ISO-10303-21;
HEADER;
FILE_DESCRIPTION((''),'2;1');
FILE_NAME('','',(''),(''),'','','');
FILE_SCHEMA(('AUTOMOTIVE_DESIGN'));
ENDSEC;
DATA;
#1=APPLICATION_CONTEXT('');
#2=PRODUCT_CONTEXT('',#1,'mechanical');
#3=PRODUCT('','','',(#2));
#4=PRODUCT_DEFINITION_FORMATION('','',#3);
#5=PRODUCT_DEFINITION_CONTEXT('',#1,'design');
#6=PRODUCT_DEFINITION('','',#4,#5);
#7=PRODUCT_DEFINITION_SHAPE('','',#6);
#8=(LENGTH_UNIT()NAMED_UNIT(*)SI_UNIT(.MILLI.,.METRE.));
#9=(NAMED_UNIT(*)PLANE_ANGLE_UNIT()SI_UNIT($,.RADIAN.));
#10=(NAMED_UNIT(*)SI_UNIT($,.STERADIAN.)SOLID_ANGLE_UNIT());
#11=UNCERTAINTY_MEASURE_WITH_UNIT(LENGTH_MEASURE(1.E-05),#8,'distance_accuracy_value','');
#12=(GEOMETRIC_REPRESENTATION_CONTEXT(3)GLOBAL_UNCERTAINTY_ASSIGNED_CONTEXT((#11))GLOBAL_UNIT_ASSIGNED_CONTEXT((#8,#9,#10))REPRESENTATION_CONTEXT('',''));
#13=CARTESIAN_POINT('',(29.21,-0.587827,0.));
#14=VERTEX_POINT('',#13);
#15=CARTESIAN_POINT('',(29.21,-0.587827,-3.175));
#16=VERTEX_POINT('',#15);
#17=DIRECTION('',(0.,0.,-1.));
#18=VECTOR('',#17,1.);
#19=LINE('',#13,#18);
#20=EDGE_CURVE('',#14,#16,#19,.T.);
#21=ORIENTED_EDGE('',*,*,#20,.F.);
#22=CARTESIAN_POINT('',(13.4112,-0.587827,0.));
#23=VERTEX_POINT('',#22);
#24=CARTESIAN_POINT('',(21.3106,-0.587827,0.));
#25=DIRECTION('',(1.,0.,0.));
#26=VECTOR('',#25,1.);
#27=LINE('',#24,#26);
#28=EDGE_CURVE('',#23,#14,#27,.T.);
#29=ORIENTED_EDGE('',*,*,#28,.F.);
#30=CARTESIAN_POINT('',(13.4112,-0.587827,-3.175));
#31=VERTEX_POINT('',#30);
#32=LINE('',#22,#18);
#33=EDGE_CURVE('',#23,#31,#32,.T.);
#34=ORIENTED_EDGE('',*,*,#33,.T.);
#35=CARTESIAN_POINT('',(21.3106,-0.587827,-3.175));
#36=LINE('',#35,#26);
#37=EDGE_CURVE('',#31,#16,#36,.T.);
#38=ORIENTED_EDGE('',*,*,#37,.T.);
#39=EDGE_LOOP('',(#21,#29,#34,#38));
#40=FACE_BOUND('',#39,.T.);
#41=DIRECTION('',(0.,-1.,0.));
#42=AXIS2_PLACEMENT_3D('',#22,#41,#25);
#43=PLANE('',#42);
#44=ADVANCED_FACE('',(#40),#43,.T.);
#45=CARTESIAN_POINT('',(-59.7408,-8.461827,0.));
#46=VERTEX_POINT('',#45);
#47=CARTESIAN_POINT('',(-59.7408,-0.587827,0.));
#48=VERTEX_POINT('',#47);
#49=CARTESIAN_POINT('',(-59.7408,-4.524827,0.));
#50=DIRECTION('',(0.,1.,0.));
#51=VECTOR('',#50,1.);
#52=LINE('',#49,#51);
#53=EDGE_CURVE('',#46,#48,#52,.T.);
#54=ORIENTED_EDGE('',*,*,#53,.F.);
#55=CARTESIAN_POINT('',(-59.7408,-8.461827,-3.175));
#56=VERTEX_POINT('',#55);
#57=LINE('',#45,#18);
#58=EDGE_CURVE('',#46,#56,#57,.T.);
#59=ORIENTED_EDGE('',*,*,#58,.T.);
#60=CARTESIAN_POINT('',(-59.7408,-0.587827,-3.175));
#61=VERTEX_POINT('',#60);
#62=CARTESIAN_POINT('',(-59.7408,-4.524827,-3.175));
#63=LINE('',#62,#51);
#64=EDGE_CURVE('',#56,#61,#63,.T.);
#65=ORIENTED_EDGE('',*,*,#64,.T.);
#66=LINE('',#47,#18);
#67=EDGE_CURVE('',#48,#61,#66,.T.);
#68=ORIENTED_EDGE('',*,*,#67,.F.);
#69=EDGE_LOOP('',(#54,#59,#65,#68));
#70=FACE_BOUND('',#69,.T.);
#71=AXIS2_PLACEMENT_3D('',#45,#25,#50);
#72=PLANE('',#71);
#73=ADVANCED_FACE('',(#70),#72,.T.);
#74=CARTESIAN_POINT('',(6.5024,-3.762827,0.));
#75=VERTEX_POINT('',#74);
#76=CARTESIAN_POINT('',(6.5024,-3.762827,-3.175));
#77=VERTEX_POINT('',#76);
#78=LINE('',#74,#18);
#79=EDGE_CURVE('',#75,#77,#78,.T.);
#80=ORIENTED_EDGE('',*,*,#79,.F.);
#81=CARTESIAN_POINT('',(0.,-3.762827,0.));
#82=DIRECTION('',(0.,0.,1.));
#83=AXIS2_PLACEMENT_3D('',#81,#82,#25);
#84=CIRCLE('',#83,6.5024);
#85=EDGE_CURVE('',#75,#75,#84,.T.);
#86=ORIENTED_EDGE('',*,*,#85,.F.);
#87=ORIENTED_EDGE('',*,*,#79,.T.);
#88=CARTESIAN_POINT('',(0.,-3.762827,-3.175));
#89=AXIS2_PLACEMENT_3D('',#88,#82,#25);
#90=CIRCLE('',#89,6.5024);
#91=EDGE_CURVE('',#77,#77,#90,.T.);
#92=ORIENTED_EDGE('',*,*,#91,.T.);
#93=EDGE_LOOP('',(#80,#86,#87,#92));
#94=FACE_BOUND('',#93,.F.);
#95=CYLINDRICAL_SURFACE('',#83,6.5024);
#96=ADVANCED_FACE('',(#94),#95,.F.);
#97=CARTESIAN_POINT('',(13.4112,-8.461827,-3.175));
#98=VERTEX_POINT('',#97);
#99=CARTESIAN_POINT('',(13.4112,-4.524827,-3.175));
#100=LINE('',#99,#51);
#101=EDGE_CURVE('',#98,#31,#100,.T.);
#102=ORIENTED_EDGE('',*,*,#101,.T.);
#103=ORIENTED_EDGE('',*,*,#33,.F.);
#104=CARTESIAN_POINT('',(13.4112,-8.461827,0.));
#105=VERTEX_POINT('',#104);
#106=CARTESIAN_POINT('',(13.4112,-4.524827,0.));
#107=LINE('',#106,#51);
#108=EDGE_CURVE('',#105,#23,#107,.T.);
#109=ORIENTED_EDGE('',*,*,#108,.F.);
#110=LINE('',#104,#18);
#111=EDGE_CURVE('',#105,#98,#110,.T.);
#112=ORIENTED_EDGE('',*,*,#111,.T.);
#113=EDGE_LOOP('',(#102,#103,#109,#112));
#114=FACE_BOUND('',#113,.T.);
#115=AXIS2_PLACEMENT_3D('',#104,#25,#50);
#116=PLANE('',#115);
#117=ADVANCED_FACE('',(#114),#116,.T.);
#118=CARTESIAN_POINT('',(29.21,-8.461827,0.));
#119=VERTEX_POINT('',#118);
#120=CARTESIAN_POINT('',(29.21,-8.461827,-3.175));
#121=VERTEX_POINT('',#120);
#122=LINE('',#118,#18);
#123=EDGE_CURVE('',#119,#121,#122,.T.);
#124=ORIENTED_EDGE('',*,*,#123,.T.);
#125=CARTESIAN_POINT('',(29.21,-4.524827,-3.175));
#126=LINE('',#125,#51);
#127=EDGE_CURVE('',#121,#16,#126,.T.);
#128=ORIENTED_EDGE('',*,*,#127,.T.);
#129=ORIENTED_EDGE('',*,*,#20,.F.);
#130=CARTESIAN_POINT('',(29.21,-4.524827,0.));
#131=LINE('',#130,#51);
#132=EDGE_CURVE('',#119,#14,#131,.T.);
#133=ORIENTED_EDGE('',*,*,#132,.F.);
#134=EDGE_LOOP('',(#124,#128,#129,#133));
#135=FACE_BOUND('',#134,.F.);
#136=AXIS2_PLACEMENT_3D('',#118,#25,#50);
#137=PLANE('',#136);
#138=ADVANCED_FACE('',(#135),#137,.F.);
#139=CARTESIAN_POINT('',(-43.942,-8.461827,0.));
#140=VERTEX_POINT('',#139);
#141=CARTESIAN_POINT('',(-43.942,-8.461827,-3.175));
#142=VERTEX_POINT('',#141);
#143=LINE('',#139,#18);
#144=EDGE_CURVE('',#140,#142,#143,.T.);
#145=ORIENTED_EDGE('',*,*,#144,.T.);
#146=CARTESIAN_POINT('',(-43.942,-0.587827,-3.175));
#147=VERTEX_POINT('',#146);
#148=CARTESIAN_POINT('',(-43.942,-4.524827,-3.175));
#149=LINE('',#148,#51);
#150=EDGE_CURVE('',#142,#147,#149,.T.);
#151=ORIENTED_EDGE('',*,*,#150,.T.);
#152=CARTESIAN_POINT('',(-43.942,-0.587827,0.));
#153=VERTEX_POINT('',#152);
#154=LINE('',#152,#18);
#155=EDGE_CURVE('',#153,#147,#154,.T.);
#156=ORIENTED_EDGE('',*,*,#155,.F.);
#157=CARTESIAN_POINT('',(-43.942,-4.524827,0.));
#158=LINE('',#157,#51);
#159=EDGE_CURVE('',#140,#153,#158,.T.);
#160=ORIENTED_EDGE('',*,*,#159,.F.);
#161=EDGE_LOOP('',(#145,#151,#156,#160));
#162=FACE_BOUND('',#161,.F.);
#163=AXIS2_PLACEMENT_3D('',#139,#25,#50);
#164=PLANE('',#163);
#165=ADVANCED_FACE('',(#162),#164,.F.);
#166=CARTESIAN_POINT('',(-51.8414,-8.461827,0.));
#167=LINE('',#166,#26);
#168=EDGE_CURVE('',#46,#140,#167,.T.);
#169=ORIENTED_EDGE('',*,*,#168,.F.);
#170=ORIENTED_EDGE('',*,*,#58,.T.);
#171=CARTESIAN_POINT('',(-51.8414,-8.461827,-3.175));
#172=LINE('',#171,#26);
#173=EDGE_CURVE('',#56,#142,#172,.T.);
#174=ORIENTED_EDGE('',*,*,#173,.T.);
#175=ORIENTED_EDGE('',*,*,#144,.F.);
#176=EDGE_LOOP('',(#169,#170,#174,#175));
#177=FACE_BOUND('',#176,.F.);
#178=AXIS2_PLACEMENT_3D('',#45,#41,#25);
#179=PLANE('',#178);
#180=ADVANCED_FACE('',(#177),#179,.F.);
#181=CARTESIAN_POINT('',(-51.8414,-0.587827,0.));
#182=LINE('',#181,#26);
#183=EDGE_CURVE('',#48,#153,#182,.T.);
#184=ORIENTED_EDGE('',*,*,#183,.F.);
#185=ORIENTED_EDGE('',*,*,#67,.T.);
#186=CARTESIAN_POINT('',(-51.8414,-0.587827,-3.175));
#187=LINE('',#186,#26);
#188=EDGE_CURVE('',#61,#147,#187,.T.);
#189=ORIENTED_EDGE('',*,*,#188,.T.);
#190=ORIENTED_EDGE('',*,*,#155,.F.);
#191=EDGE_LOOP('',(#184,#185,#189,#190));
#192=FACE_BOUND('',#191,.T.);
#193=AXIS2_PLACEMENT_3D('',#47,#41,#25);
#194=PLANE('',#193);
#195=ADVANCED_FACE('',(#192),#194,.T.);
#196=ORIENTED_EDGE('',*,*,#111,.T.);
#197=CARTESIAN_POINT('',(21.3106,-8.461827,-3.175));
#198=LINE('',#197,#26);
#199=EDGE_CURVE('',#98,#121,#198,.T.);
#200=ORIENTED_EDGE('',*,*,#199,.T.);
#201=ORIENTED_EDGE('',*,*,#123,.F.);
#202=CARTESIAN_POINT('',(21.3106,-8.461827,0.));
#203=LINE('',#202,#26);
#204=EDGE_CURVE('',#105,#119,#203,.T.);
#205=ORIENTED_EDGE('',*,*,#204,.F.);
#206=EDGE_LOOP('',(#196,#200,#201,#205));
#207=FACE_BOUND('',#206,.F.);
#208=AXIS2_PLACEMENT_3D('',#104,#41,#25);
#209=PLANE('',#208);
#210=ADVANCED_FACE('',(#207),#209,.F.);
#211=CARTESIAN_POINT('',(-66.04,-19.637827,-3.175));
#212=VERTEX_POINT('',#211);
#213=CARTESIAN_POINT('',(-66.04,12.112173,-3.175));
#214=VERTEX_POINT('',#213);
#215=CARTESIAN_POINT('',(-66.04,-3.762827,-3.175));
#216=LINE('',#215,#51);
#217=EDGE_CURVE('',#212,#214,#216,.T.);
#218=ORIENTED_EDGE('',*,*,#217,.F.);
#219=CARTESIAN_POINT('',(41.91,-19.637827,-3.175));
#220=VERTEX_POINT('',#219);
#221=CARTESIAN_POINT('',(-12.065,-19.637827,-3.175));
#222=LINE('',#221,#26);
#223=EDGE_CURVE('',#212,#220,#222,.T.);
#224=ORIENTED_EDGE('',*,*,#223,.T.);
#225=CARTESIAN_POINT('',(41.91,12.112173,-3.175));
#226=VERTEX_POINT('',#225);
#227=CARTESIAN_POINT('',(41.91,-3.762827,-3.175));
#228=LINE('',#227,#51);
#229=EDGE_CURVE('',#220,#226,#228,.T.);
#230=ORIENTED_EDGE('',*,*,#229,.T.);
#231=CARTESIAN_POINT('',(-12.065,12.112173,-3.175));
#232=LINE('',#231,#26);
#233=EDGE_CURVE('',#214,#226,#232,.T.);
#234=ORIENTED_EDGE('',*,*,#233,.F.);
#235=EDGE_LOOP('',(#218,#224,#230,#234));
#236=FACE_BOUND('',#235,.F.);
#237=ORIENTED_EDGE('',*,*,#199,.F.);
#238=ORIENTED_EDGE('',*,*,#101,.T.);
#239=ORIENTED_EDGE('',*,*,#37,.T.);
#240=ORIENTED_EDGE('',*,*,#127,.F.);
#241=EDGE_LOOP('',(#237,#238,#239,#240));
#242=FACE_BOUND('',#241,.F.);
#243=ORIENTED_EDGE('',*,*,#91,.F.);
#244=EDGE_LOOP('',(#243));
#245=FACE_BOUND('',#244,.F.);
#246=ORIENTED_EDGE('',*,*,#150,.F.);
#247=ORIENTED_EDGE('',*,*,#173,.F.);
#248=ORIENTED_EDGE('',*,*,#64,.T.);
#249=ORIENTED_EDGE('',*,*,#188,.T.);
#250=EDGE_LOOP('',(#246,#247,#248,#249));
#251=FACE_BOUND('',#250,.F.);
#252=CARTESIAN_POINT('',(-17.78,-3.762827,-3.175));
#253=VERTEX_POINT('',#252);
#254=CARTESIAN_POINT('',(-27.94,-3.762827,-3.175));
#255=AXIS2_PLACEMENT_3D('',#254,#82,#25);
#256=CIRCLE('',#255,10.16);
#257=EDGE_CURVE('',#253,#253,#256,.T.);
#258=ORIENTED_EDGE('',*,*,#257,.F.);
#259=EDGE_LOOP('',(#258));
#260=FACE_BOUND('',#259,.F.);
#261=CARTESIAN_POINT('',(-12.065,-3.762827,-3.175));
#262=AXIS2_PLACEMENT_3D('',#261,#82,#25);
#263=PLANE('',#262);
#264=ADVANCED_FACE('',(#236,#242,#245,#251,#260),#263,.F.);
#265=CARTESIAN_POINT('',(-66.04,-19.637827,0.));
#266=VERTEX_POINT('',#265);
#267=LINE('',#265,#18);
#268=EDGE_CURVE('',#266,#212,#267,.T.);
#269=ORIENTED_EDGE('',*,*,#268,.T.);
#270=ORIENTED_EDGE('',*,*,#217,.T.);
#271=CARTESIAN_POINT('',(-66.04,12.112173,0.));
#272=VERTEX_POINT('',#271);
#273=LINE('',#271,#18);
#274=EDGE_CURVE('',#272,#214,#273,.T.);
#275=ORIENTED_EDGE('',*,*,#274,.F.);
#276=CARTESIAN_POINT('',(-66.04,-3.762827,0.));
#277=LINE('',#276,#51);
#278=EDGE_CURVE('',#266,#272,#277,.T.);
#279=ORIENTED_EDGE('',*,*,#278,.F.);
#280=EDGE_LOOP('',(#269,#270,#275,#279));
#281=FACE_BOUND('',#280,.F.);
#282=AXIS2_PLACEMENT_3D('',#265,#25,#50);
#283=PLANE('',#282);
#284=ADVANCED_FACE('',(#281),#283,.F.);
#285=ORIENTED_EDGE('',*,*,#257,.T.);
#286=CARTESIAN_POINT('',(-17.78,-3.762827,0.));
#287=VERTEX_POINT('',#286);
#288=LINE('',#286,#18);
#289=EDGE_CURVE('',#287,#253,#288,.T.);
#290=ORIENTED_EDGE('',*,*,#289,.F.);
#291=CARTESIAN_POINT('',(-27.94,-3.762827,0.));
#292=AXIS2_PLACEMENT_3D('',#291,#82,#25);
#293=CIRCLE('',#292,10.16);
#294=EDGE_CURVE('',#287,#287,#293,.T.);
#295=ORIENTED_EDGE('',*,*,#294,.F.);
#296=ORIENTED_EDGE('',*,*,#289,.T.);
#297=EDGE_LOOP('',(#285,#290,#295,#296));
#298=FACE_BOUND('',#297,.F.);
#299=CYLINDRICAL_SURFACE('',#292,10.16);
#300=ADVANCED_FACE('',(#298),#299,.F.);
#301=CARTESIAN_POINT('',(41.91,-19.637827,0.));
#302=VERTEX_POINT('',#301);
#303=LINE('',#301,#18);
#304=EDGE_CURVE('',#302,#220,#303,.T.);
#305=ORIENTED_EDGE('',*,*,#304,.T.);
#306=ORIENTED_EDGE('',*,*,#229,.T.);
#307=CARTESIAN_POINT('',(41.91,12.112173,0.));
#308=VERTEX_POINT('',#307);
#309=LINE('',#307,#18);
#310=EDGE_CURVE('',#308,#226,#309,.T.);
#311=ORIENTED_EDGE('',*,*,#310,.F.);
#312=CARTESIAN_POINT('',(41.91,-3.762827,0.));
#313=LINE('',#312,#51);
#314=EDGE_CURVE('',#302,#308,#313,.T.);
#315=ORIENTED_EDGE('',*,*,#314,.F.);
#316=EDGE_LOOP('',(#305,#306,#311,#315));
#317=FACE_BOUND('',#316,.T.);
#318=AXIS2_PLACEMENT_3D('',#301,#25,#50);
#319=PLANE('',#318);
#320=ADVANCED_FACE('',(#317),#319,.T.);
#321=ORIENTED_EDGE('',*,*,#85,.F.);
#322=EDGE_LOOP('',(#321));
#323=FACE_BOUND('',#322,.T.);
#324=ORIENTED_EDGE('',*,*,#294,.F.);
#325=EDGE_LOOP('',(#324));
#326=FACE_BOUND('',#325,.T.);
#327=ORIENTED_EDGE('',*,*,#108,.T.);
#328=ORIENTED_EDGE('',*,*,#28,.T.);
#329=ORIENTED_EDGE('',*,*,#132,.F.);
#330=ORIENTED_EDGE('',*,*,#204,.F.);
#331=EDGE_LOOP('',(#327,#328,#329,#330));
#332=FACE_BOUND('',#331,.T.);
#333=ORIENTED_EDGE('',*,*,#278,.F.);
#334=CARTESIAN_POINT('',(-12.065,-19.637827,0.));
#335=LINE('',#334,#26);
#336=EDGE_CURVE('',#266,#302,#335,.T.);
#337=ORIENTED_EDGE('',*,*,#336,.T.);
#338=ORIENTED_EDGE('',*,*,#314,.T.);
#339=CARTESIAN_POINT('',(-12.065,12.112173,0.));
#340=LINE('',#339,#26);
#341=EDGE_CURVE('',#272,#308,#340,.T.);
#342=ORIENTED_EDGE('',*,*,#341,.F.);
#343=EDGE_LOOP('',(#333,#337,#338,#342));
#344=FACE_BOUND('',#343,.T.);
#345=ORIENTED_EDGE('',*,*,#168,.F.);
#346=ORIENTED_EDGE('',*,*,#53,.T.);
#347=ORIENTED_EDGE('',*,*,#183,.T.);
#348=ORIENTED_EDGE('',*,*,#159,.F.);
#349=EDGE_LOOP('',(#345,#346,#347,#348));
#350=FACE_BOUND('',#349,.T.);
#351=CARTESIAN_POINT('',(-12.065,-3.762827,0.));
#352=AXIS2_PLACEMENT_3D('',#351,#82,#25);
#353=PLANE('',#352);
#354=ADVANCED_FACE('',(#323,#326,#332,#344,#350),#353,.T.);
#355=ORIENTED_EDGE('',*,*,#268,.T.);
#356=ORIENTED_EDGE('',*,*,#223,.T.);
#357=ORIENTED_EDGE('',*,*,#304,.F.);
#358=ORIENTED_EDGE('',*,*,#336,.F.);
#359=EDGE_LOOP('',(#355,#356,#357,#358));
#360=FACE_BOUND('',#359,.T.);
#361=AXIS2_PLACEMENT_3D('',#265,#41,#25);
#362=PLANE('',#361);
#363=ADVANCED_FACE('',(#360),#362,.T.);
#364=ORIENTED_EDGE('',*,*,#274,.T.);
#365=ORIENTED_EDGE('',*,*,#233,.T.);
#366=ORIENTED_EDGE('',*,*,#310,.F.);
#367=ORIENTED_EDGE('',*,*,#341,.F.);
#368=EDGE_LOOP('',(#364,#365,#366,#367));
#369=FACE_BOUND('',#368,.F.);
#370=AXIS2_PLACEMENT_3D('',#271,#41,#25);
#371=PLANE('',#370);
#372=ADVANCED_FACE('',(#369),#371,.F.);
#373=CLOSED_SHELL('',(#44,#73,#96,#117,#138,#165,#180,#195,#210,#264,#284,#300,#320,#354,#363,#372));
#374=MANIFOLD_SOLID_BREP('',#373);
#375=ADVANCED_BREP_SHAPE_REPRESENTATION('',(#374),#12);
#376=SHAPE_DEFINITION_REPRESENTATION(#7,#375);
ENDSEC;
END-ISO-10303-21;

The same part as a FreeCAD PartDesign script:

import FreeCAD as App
import Part
import Sketcher
Q = App.Units.Quantity


def add_polygon(sketch, points):
    """Adds a closed chain of lines whose ends are joined by coincident constraints."""
    first, n = sketch.GeometryCount, len(points)
    for a, b in zip(points, points[1:] + points[:1]):
        sketch.addGeometry(Part.LineSegment(App.Vector(*a, 0), App.Vector(*b, 0)), False)
    for i in range(n):
        sketch.addConstraint(Sketcher.Constraint("Coincident", first + i, 2, first + (i + 1) % n, 1))

doc = App.newDocument("Part")
body = doc.addObject("PartDesign::Body", "Body")

sketch1 = body.newObject("Sketcher::SketchObject", "Sketch")
sketch1.AttachmentSupport = (doc.getObject("XY_Plane"), [""])
sketch1.MapMode = "FlatFace"
add_polygon(sketch1, [(-66, 12), (-66, -20), (42, -20), (42, 12)])
add_polygon(sketch1, [(-44, -8), (-60, -8), (-60, -1), (-44, -1)])
sketch1.addGeometry(Part.Circle(App.Vector(-28, -4, 0), App.Vector(0, 0, 1), 10), False)
sketch1.addGeometry(Part.Circle(App.Vector(0, -4, 0), App.Vector(0, 0, 1), 7), False)
add_polygon(sketch1, [(29, -8), (13, -8), (13, -1), (29, -1)])
sketch1.addConstraint([
    Sketcher.Constraint("Vertical", 0),
    Sketcher.Constraint("Horizontal", 1),
    Sketcher.Constraint("Vertical", 2),
    Sketcher.Constraint("Horizontal", 3),
    Sketcher.Constraint("Horizontal", 4),
    Sketcher.Constraint("Vertical", 5),
    Sketcher.Constraint("Horizontal", 6),
    Sketcher.Constraint("Vertical", 7),
    Sketcher.Constraint("Horizontal", 10),
    Sketcher.Constraint("Vertical", 11),
    Sketcher.Constraint("Horizontal", 12),
    Sketcher.Constraint("Vertical", 13),
    Sketcher.Constraint("PointOnObject", 9, 3, -2),
    Sketcher.Constraint("Horizontal", 8, 3, 9, 3),
    Sketcher.Constraint("Horizontal", 7, 2, 10, 2),
    Sketcher.Constraint("Horizontal", 6, 2, 11, 2),
    Sketcher.Constraint("Equal", 6, 10),
    Sketcher.Constraint("Diameter", 8, Q("0.8 in")),
    Sketcher.Constraint("Diameter", 9, Q("0.512 in")),
    Sketcher.Constraint("DistanceX", 1, 1, 1, 2, Q("4.25 in")),
    Sketcher.Constraint("DistanceY", 0, 2, 0, 1, Q("1.25 in")),
    Sketcher.Constraint("DistanceY", 5, 1, 5, 2, Q("0.31 in")),
    Sketcher.Constraint("DistanceX", 8, 3, -1, 1, Q("1.1 in")),
    Sketcher.Constraint("DistanceX", 0, 2, -1, 1, Q("2.6 in")),
    Sketcher.Constraint("DistanceY", 5, 2, 3, 2, Q("0.5 in")),
    Sketcher.Constraint("DistanceX", 12, 2, 2, 2, Q("0.5 in")),
    Sketcher.Constraint("DistanceX", 4, 2, 4, 1, Q("0.622 in")),
    Sketcher.Constraint("DistanceX", 6, 2, -1, 1, Q("1.73 in")),
    Sketcher.Constraint("DistanceY", 0, 2, 8, 3, Q("0.625 in")),
    Sketcher.Constraint("DistanceY", 8, 3, -1, 1, Q("3.762827 mm")),
])
pad1 = body.newObject("PartDesign::Pad", "Pad")
pad1.Profile = sketch1
pad1.Length = Q("0.125 in")
pad1.Reversed = True

doc.recompute()
